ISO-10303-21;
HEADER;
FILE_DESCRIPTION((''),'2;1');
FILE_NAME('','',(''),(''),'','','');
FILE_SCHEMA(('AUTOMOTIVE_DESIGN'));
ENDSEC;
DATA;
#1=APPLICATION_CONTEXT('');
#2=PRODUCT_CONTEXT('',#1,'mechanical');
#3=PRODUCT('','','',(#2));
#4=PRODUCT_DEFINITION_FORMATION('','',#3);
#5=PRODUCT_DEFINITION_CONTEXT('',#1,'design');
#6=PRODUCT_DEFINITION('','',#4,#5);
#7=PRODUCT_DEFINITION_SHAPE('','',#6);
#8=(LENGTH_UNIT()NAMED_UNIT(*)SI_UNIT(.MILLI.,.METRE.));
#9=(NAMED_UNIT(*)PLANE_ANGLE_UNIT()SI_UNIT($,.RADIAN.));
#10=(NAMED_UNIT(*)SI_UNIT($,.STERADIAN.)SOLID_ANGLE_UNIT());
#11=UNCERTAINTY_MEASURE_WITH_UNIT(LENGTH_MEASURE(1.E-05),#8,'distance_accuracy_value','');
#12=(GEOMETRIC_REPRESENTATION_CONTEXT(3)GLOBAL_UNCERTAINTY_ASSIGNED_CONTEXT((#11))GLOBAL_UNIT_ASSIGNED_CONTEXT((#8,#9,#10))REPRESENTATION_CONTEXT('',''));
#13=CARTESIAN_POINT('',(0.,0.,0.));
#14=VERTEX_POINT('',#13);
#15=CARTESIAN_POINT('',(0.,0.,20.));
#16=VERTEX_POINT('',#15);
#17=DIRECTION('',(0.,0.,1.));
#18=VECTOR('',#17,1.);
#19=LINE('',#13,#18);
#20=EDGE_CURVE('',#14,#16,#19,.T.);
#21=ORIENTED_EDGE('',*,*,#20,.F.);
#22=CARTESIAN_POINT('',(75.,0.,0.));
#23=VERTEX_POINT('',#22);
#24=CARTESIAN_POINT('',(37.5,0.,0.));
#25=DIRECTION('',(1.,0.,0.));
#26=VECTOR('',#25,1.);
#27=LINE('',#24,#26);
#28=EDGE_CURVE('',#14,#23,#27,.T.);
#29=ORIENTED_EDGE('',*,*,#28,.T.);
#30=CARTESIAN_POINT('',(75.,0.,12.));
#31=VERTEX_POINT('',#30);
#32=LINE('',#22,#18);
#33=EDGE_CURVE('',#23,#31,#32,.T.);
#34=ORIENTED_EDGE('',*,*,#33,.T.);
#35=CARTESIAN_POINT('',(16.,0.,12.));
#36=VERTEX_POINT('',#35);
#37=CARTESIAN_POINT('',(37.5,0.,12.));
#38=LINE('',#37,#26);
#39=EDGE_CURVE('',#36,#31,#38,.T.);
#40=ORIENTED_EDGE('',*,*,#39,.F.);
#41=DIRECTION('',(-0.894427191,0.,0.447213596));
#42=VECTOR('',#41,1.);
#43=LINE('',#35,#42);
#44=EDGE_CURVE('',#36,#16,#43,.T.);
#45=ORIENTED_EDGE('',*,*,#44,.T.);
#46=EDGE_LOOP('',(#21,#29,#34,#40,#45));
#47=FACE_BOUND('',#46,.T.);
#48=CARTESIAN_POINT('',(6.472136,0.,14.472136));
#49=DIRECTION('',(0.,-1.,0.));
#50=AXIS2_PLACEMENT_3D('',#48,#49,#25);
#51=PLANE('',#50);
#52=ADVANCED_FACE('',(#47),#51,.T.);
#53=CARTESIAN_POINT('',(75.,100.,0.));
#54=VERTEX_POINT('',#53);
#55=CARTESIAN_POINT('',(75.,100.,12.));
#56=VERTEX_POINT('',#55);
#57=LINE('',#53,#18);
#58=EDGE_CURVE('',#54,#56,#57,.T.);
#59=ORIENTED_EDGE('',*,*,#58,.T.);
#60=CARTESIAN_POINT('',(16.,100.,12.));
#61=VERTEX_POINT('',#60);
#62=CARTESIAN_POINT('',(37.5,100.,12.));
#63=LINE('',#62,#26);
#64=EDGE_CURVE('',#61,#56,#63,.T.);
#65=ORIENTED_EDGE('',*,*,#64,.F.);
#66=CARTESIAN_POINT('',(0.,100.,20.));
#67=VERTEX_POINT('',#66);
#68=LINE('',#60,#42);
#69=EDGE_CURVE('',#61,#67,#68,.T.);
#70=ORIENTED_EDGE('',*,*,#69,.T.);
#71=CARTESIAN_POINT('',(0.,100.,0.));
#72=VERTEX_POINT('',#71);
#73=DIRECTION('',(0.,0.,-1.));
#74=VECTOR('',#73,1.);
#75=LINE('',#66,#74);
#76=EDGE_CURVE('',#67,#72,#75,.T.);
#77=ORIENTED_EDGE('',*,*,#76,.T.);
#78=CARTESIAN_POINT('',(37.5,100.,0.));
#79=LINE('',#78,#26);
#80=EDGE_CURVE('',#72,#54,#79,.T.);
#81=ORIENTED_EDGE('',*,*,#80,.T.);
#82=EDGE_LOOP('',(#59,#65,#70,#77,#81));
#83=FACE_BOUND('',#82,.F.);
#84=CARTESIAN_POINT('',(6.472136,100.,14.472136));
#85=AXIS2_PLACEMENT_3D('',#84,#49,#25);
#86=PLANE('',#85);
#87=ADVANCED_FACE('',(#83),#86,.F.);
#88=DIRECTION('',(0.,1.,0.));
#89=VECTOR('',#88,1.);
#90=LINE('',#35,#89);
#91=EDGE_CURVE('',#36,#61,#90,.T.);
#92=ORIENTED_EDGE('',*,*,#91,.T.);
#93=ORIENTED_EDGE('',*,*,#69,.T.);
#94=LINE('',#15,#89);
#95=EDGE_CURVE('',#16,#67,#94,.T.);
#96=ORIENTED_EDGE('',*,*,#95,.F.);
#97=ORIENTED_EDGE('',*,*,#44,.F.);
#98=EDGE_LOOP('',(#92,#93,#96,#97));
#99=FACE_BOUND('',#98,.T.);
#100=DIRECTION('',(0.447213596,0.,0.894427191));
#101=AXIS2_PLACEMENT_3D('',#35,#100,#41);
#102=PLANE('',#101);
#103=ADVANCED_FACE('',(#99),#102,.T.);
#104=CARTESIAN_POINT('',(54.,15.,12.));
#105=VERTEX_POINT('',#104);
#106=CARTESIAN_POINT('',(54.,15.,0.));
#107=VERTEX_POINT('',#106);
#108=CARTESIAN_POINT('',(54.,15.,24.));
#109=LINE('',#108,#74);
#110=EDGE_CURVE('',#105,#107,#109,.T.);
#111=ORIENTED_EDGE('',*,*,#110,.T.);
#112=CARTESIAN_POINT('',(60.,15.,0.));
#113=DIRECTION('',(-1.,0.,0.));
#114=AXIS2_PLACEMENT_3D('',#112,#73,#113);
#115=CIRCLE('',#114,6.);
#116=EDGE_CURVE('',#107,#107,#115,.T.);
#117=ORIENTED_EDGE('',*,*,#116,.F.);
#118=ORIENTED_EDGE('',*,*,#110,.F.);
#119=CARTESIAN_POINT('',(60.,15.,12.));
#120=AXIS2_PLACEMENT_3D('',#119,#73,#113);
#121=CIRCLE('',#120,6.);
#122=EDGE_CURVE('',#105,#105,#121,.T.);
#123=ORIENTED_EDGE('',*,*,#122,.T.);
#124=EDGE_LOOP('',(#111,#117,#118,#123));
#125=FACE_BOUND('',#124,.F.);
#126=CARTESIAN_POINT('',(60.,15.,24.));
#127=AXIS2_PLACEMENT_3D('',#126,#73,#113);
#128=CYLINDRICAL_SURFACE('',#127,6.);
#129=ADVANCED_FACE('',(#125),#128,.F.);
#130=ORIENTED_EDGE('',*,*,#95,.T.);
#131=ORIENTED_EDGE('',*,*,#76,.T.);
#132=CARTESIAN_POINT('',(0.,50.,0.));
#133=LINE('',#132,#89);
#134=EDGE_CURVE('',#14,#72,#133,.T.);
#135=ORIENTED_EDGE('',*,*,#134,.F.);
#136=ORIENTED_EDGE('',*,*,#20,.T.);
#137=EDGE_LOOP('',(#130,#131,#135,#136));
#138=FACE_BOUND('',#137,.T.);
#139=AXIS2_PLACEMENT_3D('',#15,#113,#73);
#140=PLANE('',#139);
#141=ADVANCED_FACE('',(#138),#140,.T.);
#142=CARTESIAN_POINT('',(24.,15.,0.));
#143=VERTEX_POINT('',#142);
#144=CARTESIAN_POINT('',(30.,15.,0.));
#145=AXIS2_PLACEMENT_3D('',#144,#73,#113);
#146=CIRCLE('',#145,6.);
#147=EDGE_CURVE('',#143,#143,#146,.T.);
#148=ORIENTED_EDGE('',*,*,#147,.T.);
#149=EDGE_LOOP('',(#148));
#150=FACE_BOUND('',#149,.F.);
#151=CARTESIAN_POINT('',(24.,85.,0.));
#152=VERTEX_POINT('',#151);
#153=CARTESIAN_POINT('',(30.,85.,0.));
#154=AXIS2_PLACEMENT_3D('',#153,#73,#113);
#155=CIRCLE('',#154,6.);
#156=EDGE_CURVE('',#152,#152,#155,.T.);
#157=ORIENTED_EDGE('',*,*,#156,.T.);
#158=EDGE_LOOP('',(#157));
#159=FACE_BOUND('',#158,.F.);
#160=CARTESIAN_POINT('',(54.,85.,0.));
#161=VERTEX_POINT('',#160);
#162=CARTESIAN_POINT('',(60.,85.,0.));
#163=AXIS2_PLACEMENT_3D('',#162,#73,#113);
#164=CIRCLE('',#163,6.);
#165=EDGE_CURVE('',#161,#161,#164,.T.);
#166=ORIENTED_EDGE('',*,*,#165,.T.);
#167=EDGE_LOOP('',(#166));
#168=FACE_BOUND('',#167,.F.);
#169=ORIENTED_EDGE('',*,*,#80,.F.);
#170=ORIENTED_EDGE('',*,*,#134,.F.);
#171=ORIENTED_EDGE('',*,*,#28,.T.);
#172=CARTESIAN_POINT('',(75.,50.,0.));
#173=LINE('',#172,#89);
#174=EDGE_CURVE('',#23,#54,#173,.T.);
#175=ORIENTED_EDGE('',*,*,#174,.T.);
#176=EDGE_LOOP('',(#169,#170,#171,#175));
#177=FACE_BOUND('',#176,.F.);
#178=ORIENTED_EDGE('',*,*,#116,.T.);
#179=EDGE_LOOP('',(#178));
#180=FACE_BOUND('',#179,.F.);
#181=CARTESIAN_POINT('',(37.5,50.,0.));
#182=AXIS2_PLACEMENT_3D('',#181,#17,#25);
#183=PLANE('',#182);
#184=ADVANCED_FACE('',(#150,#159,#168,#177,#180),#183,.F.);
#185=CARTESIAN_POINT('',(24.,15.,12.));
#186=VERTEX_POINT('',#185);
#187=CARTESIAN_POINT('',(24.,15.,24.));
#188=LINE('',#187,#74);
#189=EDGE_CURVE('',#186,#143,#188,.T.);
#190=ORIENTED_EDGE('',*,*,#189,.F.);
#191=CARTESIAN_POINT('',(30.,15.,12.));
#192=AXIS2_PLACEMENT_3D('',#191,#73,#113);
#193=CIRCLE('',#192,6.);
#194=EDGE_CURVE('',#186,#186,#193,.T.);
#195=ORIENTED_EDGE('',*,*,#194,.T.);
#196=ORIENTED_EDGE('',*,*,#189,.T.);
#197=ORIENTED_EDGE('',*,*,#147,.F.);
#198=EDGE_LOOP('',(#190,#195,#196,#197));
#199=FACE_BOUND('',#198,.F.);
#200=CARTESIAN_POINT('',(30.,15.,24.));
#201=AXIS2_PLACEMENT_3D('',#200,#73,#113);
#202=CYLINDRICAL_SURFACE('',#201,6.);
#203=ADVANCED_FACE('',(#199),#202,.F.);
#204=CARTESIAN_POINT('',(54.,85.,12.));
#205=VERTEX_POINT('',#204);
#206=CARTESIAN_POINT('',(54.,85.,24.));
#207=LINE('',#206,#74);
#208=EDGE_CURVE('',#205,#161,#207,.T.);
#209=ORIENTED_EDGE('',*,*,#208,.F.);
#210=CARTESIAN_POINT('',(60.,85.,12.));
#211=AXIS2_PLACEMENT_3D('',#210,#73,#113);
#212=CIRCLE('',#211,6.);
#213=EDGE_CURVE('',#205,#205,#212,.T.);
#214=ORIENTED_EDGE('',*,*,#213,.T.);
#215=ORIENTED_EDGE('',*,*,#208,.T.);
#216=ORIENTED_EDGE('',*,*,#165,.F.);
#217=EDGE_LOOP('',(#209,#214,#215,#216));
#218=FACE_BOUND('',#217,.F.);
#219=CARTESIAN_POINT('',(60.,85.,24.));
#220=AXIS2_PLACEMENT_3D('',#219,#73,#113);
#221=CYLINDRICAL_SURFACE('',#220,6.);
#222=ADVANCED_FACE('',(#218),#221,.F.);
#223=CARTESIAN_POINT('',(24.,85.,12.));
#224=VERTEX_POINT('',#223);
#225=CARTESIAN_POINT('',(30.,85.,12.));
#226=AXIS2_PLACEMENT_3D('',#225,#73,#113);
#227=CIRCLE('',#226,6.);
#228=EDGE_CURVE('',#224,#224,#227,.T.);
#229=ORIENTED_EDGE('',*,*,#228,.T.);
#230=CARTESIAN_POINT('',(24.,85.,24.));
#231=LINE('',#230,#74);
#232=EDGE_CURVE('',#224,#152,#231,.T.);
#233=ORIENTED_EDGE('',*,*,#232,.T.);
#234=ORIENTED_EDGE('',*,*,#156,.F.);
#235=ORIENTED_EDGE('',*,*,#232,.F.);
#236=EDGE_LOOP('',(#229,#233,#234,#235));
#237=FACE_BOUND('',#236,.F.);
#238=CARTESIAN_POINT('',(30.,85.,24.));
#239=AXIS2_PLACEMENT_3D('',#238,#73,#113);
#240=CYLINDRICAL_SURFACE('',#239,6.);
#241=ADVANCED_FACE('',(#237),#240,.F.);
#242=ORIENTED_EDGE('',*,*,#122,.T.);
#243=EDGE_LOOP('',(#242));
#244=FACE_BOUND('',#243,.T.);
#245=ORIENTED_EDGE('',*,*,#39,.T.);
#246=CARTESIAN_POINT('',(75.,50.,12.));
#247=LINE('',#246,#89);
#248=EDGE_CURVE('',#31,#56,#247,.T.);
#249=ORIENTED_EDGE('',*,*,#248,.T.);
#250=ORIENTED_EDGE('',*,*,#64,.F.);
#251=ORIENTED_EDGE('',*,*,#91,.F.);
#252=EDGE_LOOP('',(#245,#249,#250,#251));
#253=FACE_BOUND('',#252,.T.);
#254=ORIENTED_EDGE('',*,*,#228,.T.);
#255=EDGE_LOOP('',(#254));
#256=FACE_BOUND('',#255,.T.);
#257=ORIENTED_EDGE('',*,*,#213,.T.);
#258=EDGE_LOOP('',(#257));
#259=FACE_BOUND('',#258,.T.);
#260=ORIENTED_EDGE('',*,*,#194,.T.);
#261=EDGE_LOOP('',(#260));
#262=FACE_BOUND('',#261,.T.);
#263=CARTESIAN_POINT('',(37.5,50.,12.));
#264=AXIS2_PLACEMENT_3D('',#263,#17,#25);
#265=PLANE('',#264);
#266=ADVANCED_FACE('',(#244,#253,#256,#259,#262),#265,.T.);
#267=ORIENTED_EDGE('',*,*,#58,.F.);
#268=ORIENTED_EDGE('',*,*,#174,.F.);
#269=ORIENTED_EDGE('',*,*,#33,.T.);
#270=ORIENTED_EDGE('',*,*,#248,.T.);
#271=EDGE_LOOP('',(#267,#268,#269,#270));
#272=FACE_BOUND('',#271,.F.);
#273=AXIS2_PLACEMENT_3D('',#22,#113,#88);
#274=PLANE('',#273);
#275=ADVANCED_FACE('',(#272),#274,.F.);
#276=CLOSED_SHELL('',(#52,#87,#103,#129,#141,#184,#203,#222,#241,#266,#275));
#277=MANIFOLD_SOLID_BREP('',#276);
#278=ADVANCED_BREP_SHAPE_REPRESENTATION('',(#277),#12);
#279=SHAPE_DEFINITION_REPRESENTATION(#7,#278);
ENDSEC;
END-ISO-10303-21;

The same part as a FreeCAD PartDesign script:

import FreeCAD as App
import Part
import Sketcher

V = App.Vector
Q = App.Units.Quantity

doc = App.newDocument("Part")
body = doc.addObject("PartDesign::Body", "Body")

# Sketch on XY plane
sketch1 = body.newObject("Sketcher::SketchObject", "Sketch")
sketch1.AttachmentSupport = (doc.getObject("XY_Plane"), [""])
sketch1.MapMode = "FlatFace"
sketch1.addGeometry([
    Part.LineSegment(V(0, 100, 0), V(0, 0, 0)),
    Part.LineSegment(V(0, 0, 0), V(75, 0, 0)),
    Part.LineSegment(V(75, 0, 0), V(75, 100, 0)),
    Part.LineSegment(V(75, 100, 0), V(0, 100, 0)),
], False)
sketch1.addConstraint([
    Sketcher.Constraint("Coincident", 0, 2, 1, 1),
    Sketcher.Constraint("Coincident", 1, 2, 2, 1),
    Sketcher.Constraint("Coincident", 2, 2, 3, 1),
    Sketcher.Constraint("Coincident", 3, 2, 0, 1),
    Sketcher.Constraint("Vertical", 0),
    Sketcher.Constraint("Horizontal", 1),
    Sketcher.Constraint("Vertical", 2),
    Sketcher.Constraint("Horizontal", 3),
    Sketcher.Constraint("Coincident", 0, 2, -1, 1),
    Sketcher.Constraint("DistanceX", 1, 1, 1, 2, Q("75 mm")),
    Sketcher.Constraint("DistanceY", 0, 2, 0, 1, Q("100 mm")),
])
pad1 = body.newObject("PartDesign::Pad", "Pad")
pad1.Profile = sketch1
pad1.Length = 12

# Sketch on XZ plane
sketch2 = body.newObject("Sketcher::SketchObject", "Sketch001")
sketch2.AttachmentSupport = (doc.getObject("XZ_Plane"), [""])
sketch2.MapMode = "FlatFace"
sketch2.addGeometry([
    Part.LineSegment(V(0, 20, 0), V(0, 12, 0)),
    Part.LineSegment(V(0, 12, 0), V(16, 12, 0)),
    Part.LineSegment(V(16, 12, 0), V(0, 20, 0)),
], False)
sketch2.addConstraint([
    Sketcher.Constraint("Coincident", 0, 2, 1, 1),
    Sketcher.Constraint("Coincident", 1, 2, 2, 1),
    Sketcher.Constraint("Coincident", 2, 2, 0, 1),
    Sketcher.Constraint("Vertical", 0),
    Sketcher.Constraint("Horizontal", 1),
    Sketcher.Constraint("PointOnObject", 0, 2, -2),
    Sketcher.Constraint("DistanceX", 1, 1, 1, 2, Q("16 mm")),
    Sketcher.Constraint("DistanceY", 0, 2, 0, 1, Q("8 mm")),
    Sketcher.Constraint("DistanceY", -1, 1, 0, 2, Q("12 mm")),
])
pad2 = body.newObject("PartDesign::Pad", "Pad001")
pad2.Profile = sketch2
pad2.Length = 100
pad2.Reversed = True

# Sketch on XY plane
sketch3 = body.newObject("Sketcher::SketchObject", "Sketch002")
sketch3.AttachmentSupport = (doc.getObject("XY_Plane"), [""])
sketch3.MapMode = "FlatFace"
sketch3.AttachmentOffset = App.Placement(V(0, 0, 12), App.Rotation())
sketch3.addGeometry([
    Part.Circle(V(30, 15, 0), V(0, 0, 1), 6),
    Part.Circle(V(60, 15, 0), V(0, 0, 1), 6),
    Part.Circle(V(60, 85, 0), V(0, 0, 1), 6),
    Part.Circle(V(30, 85, 0), V(0, 0, 1), 6),
], False)
sketch3.addConstraint([
    Sketcher.Constraint("Equal", 0, 1),
    Sketcher.Constraint("Equal", 1, 2),
    Sketcher.Constraint("Equal", 2, 3),
    Sketcher.Constraint("Horizontal", 0, 3, 1, 3),
    Sketcher.Constraint("Horizontal", 2, 3, 3, 3),
    Sketcher.Constraint("Vertical", 1, 3, 2, 3),
    Sketcher.Constraint("Vertical", 0, 3, 3, 3),
    Sketcher.Constraint("Diameter", 0, Q("12 mm")),
    Sketcher.Constraint("DistanceX", -1, 1, 0, 3, Q("30 mm")),
    Sketcher.Constraint("DistanceY", -1, 1, 0, 3, Q("15 mm")),
    Sketcher.Constraint("DistanceX", -1, 1, 1, 3, Q("60 mm")),
    Sketcher.Constraint("DistanceY", -1, 1, 2, 3, Q("85 mm")),
])
doc.recompute()
hole = body.newObject("PartDesign::Hole", "Hole")
hole.Profile = sketch3
hole.ThreadType = "None"
hole.Diameter = 12
hole.DepthType = "Dimension"
hole.Depth = 12
hole.DrillPoint = "Flat"

doc.recompute()
